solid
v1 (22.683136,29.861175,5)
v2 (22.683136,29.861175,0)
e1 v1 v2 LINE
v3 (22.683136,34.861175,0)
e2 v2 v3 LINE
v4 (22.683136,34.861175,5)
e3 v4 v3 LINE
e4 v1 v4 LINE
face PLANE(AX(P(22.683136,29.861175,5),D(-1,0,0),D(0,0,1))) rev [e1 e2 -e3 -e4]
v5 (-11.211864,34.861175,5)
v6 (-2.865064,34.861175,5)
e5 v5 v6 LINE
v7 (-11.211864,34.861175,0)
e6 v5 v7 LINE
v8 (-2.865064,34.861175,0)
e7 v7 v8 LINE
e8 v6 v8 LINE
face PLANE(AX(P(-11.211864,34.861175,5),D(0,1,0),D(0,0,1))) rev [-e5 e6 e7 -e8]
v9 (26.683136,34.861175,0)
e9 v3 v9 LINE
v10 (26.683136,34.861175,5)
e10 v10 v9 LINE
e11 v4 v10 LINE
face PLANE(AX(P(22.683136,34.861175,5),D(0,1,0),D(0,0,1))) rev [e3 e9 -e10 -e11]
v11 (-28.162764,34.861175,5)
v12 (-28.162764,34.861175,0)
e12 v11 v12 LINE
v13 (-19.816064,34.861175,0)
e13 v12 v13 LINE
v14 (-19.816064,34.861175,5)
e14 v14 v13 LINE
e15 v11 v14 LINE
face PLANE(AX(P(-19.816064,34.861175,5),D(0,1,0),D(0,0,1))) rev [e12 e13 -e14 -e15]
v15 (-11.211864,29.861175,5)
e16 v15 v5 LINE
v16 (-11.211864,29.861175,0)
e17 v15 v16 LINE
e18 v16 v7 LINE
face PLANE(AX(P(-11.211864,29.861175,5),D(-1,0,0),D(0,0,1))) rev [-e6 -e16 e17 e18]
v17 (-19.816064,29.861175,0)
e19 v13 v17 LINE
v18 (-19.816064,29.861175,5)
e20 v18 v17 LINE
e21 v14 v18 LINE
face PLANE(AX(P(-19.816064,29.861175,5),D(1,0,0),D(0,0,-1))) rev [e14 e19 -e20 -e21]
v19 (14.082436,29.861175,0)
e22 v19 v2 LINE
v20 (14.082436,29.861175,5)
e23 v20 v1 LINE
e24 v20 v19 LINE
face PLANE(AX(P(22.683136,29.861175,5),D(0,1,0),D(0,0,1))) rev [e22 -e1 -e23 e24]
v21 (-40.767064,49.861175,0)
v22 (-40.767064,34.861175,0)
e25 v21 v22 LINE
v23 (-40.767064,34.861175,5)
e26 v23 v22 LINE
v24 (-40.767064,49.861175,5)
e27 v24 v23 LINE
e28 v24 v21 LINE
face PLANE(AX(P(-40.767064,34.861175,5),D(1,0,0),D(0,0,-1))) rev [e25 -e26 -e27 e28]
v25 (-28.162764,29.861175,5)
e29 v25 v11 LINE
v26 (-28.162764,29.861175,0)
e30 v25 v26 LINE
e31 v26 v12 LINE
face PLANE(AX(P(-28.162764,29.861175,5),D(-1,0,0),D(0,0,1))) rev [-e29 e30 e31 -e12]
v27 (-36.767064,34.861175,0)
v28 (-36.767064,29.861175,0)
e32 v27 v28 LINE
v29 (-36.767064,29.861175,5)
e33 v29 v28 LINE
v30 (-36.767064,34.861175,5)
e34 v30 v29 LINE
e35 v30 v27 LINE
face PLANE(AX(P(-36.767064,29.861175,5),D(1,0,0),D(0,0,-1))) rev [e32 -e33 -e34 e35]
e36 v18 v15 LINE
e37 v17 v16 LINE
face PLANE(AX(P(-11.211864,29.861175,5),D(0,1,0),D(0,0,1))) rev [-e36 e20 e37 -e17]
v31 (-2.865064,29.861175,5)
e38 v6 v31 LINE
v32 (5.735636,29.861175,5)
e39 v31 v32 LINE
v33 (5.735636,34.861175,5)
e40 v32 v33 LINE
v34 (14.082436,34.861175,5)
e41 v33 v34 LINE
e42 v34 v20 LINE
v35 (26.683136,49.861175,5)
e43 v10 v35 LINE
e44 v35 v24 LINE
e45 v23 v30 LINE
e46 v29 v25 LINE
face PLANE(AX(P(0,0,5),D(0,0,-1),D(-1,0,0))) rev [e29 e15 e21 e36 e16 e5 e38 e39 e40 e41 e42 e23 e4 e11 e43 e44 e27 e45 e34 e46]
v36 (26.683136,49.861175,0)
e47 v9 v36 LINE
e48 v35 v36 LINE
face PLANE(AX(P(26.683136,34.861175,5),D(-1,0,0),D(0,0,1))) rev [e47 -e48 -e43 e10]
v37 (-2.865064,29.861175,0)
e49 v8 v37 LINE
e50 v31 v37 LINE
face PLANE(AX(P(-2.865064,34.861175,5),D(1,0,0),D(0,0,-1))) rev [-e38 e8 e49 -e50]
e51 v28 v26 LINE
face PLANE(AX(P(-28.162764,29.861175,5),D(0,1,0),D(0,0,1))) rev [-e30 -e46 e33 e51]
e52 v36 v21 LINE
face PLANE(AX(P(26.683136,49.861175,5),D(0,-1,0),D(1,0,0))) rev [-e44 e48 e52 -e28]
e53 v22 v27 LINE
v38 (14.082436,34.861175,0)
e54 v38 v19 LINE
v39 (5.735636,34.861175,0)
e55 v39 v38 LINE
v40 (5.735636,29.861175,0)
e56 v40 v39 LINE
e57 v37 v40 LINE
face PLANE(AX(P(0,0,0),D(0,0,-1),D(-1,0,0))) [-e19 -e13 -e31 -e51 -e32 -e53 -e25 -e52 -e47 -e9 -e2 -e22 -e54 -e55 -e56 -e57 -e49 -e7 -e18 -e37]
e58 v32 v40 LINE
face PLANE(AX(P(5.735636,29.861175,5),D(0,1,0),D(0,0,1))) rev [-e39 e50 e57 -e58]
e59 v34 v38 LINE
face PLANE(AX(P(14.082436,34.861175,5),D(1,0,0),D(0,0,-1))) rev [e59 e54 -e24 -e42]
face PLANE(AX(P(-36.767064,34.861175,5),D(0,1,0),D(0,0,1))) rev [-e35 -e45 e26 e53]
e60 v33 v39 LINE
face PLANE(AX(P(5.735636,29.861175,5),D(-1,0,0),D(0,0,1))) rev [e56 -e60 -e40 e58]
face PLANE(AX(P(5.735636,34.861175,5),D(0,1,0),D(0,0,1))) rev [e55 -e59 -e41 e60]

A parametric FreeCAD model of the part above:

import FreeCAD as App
import Part
import Sketcher
from FreeCAD import Vector
Q = App.Units.Quantity

doc = App.newDocument("Part")
body = doc.addObject("PartDesign::Body", "Body")

# Sketch on XY plane
sketch1 = body.newObject("Sketcher::SketchObject", "Sketch")
sketch1.AttachmentSupport = (doc.getObject("XY_Plane"), [""])
sketch1.MapMode = "FlatFace"
sketch1.addGeometry(Part.LineSegment(Vector(-2.865064, 29.861175, 0), Vector(5.735636, 29.861175, 0)), False)
sketch1.addGeometry(Part.LineSegment(Vector(5.735636, 29.861175, 0), Vector(5.735636, 34.861175, 0)), False)
sketch1.addGeometry(Part.LineSegment(Vector(5.735636, 34.861175, 0), Vector(14.082436, 34.861175, 0)), False)
sketch1.addGeometry(Part.LineSegment(Vector(14.082436, 34.861175, 0), Vector(14.082436, 29.861175, 0)), False)
sketch1.addGeometry(Part.LineSegment(Vector(14.082436, 29.861175, 0), Vector(22.683136, 29.861175, 0)), False)
sketch1.addGeometry(Part.LineSegment(Vector(22.683136, 29.861175, 0), Vector(22.683136, 34.861175, 0)), False)
sketch1.addGeometry(Part.LineSegment(Vector(22.683136, 34.861175, 0), Vector(26.683136, 34.861175, 0)), False)
sketch1.addGeometry(Part.LineSegment(Vector(26.683136, 34.861175, 0), Vector(26.683136, 49.861175, 0)), False)
sketch1.addGeometry(Part.LineSegment(Vector(26.683136, 49.861175, 0), Vector(-40.767064, 49.861175, 0)), False)
sketch1.addGeometry(Part.LineSegment(Vector(-40.767064, 49.861175, 0), Vector(-40.767064, 34.861175, 0)), False)
sketch1.addGeometry(Part.LineSegment(Vector(-40.767064, 34.861175, 0), Vector(-36.767064, 34.861175, 0)), False)
sketch1.addGeometry(Part.LineSegment(Vector(-36.767064, 34.861175, 0), Vector(-36.767064, 29.861175, 0)), False)
sketch1.addGeometry(Part.LineSegment(Vector(-36.767064, 29.861175, 0), Vector(-28.162764, 29.861175, 0)), False)
sketch1.addGeometry(Part.LineSegment(Vector(-28.162764, 29.861175, 0), Vector(-28.162764, 34.861175, 0)), False)
sketch1.addGeometry(Part.LineSegment(Vector(-28.162764, 34.861175, 0), Vector(-19.816064, 34.861175, 0)), False)
sketch1.addGeometry(Part.LineSegment(Vector(-19.816064, 34.861175, 0), Vector(-19.816064, 29.861175, 0)), False)
sketch1.addGeometry(Part.LineSegment(Vector(-19.816064, 29.861175, 0), Vector(-11.211864, 29.861175, 0)), False)
sketch1.addGeometry(Part.LineSegment(Vector(-11.211864, 29.861175, 0), Vector(-11.211864, 34.861175, 0)), False)
sketch1.addGeometry(Part.LineSegment(Vector(-11.211864, 34.861175, 0), Vector(-2.865064, 34.861175, 0)), False)
sketch1.addGeometry(Part.LineSegment(Vector(-2.865064, 34.861175, 0), Vector(-2.865064, 29.861175, 0)), False)
sketch1.addConstraint(Sketcher.Constraint("Coincident", 0, 2, 1, 1))
sketch1.addConstraint(Sketcher.Constraint("Coincident", 1, 2, 2, 1))
sketch1.addConstraint(Sketcher.Constraint("Coincident", 2, 2, 3, 1))
sketch1.addConstraint(Sketcher.Constraint("Coincident", 3, 2, 4, 1))
sketch1.addConstraint(Sketcher.Constraint("Coincident", 4, 2, 5, 1))
sketch1.addConstraint(Sketcher.Constraint("Coincident", 5, 2, 6, 1))
sketch1.addConstraint(Sketcher.Constraint("Coincident", 6, 2, 7, 1))
sketch1.addConstraint(Sketcher.Constraint("Coincident", 7, 2, 8, 1))
sketch1.addConstraint(Sketcher.Constraint("Coincident", 8, 2, 9, 1))
sketch1.addConstraint(Sketcher.Constraint("Coincident", 9, 2, 10, 1))
sketch1.addConstraint(Sketcher.Constraint("Coincident", 10, 2, 11, 1))
sketch1.addConstraint(Sketcher.Constraint("Coincident", 11, 2, 12, 1))
sketch1.addConstraint(Sketcher.Constraint("Coincident", 12, 2, 13, 1))
sketch1.addConstraint(Sketcher.Constraint("Coincident", 13, 2, 14, 1))
sketch1.addConstraint(Sketcher.Constraint("Coincident", 14, 2, 15, 1))
sketch1.addConstraint(Sketcher.Constraint("Coincident", 15, 2, 16, 1))
sketch1.addConstraint(Sketcher.Constraint("Coincident", 16, 2, 17, 1))
sketch1.addConstraint(Sketcher.Constraint("Coincident", 17, 2, 18, 1))
sketch1.addConstraint(Sketcher.Constraint("Coincident", 18, 2, 19, 1))
sketch1.addConstraint(Sketcher.Constraint("Coincident", 19, 2, 0, 1))
sketch1.addConstraint(Sketcher.Constraint("Horizontal", 0))
sketch1.addConstraint(Sketcher.Constraint("Vertical", 1))
sketch1.addConstraint(Sketcher.Constraint("Horizontal", 2))
sketch1.addConstraint(Sketcher.Constraint("Vertical", 3))
sketch1.addConstraint(Sketcher.Constraint("Horizontal", 4))
sketch1.addConstraint(Sketcher.Constraint("Vertical", 5))
sketch1.addConstraint(Sketcher.Constraint("Horizontal", 6))
sketch1.addConstraint(Sketcher.Constraint("Vertical", 7))
sketch1.addConstraint(Sketcher.Constraint("Horizontal", 8))
sketch1.addConstraint(Sketcher.Constraint("Vertical", 9))
sketch1.addConstraint(Sketcher.Constraint("Horizontal", 10))
sketch1.addConstraint(Sketcher.Constraint("Vertical", 11))
sketch1.addConstraint(Sketcher.Constraint("Horizontal", 12))
sketch1.addConstraint(Sketcher.Constraint("Vertical", 13))
sketch1.addConstraint(Sketcher.Constraint("Horizontal", 14))
sketch1.addConstraint(Sketcher.Constraint("Vertical", 15))
sketch1.addConstraint(Sketcher.Constraint("Horizontal", 16))
sketch1.addConstraint(Sketcher.Constraint("Vertical", 17))
sketch1.addConstraint(Sketcher.Constraint("Horizontal", 18))
sketch1.addConstraint(Sketcher.Constraint("Vertical", 19))
sketch1.addConstraint(Sketcher.Constraint("Horizontal", 0, 2, 3, 2))
sketch1.addConstraint(Sketcher.Constraint("Horizontal", 2, 2, 5, 2))
sketch1.addConstraint(Sketcher.Constraint("Horizontal", 6, 2, 9, 2))
sketch1.addConstraint(Sketcher.Constraint("Horizontal", 4, 2, 11, 2))
sketch1.addConstraint(Sketcher.Constraint("Horizontal", 10, 2, 13, 2))
sketch1.addConstraint(Sketcher.Constraint("Horizontal", 12, 2, 15, 2))
sketch1.addConstraint(Sketcher.Constraint("Horizontal", 14, 2, 17, 2))
sketch1.addConstraint(Sketcher.Constraint("Equal", 0, 4))
sketch1.addConstraint(Sketcher.Constraint("Equal", 6, 10))
sketch1.addConstraint(Sketcher.Constraint("Equal", 2, 18))
sketch1.addConstraint(Sketcher.Constraint("DistanceX", 6, 1, 6, 2, Q("4 mm")))
sketch1.addConstraint(Sketcher.Constraint("DistanceY", 1, 1, 1, 2, Q("5 mm")))
sketch1.addConstraint(Sketcher.Constraint("DistanceY", 7, 1, 7, 2, Q("15 mm")))
sketch1.addConstraint(Sketcher.Constraint("DistanceX", 0, 1, 0, 2, Q("8.6007 mm")))
sketch1.addConstraint(Sketcher.Constraint("DistanceX", 2, 1, 2, 2, Q("8.3468 mm")))
sketch1.addConstraint(Sketcher.Constraint("DistanceX", 8, 2, 8, 1, Q("67.4502 mm")))
sketch1.addConstraint(Sketcher.Constraint("DistanceX", 12, 1, 12, 2, Q("8.6043 mm")))
sketch1.addConstraint(Sketcher.Constraint("DistanceX", 14, 1, 14, 2, Q("8.3467 mm")))
sketch1.addConstraint(Sketcher.Constraint("DistanceX", -1, 1, 0, 2, Q("5.735636 mm")))
sketch1.addConstraint(Sketcher.Constraint("DistanceY", -1, 1, 0, 2, Q("29.861175 mm")))
pad1 = body.newObject("PartDesign::Pad", "Pad")
pad1.Profile = sketch1
pad1.Length = 5

doc.recompute()
